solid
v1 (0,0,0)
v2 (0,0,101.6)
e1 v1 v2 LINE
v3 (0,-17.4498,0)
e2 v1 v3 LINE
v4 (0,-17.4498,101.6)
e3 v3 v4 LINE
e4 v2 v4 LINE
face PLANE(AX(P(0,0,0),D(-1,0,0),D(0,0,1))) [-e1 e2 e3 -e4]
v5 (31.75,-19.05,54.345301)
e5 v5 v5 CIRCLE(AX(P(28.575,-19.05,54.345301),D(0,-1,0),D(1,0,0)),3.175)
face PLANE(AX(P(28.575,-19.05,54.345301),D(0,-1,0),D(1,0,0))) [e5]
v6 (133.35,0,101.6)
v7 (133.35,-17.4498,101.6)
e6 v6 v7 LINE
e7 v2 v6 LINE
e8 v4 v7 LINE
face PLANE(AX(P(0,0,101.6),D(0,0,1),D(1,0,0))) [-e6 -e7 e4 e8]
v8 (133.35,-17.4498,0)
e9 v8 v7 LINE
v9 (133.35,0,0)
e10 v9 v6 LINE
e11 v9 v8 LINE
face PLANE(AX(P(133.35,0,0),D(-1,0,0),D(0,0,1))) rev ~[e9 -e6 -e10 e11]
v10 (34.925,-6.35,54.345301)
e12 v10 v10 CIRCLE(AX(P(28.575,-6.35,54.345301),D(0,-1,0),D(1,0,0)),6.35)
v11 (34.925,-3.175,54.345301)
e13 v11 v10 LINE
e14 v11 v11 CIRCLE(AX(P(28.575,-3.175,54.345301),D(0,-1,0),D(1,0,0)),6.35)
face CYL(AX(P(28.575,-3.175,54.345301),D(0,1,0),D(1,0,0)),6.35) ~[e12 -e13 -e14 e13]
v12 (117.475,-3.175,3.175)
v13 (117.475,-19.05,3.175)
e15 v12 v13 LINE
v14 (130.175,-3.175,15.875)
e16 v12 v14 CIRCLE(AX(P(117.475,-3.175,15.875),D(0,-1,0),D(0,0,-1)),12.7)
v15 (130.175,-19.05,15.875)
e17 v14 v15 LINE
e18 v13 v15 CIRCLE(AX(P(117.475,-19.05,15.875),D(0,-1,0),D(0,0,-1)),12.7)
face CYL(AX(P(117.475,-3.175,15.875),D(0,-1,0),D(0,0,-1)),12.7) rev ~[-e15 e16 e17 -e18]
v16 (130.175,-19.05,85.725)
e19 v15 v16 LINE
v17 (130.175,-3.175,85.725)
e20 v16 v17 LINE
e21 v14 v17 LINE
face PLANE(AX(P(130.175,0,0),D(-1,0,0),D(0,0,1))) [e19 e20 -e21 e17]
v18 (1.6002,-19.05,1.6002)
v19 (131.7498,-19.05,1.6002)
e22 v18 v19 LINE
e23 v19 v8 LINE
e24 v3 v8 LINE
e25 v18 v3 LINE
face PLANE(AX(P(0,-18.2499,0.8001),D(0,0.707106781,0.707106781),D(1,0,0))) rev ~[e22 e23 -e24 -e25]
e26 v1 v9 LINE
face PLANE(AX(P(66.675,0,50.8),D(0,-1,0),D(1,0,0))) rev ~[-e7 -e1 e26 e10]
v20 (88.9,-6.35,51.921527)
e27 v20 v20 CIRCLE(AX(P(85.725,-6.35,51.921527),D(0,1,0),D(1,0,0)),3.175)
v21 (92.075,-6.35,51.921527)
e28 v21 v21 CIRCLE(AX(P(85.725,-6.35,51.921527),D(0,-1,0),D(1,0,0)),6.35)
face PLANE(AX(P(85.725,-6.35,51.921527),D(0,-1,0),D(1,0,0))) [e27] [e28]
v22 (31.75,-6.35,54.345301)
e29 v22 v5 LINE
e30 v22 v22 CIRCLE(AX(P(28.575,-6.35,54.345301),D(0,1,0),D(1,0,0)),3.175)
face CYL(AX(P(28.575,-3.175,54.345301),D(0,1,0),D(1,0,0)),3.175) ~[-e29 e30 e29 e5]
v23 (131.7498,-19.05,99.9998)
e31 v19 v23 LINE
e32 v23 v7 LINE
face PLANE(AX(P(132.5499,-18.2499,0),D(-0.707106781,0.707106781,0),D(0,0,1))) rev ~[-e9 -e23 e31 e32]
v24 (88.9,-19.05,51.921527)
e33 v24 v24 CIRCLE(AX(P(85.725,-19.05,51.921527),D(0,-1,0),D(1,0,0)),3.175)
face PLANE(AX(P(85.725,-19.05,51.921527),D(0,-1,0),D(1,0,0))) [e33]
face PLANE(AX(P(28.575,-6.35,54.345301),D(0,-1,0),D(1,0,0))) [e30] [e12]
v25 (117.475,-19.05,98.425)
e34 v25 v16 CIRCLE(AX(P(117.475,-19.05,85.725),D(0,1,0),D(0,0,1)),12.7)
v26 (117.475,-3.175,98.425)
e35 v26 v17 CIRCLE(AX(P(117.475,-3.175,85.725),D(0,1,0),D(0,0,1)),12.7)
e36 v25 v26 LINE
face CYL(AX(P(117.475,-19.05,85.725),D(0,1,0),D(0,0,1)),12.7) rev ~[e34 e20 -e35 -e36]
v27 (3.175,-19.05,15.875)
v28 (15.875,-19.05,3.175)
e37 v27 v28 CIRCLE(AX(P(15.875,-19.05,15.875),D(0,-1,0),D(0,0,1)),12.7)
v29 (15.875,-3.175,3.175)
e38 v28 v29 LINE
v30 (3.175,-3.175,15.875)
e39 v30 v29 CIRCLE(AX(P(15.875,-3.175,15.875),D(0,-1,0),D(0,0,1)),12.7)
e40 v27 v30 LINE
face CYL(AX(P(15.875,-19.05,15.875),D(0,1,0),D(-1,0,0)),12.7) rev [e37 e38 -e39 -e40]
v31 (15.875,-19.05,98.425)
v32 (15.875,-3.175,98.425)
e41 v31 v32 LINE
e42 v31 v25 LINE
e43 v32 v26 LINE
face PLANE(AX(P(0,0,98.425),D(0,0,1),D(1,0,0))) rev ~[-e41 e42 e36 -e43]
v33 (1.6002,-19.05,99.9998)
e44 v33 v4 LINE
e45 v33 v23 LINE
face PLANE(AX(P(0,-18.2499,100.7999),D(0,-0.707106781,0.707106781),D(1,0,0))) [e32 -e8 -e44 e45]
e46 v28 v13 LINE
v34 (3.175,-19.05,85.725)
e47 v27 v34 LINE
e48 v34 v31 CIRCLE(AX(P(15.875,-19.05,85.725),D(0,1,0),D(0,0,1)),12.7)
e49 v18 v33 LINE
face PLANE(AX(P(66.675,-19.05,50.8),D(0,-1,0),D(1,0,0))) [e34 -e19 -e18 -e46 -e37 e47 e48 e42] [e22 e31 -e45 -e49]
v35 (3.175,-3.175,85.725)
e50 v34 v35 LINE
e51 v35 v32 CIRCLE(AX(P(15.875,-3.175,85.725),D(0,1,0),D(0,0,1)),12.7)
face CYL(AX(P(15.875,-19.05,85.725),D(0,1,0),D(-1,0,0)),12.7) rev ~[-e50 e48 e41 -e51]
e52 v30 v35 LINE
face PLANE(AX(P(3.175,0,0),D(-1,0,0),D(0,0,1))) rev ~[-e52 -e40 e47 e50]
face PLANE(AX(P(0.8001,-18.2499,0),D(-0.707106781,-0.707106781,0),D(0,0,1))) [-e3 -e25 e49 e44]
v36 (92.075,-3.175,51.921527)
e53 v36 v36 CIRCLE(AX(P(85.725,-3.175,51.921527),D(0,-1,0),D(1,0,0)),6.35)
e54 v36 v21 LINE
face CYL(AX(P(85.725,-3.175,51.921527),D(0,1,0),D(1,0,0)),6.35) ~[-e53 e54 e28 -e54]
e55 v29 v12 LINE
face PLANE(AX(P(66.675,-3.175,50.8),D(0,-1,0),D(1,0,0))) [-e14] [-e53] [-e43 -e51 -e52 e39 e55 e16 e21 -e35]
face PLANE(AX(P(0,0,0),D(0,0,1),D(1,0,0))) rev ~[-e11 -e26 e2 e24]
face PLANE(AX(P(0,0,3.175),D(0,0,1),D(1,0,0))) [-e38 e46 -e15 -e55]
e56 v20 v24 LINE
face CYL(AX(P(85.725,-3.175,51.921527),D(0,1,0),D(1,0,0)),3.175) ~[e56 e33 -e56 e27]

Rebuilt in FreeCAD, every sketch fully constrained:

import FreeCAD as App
import Part
import Sketcher
from FreeCAD import Vector
Q = App.Units.Quantity


def edges_at(feature, points):
    """Names of the edges that pass closest to the given points."""
    edges = feature.Shape.Edges
    near = lambda p: min(range(len(edges)), key=lambda i: edges[i].distToShape(Part.Vertex(*p))[0])
    return sorted({f"Edge{near(p) + 1}" for p in points})


def faces_at(feature, points):
    """Names of the faces that lie closest to the given points."""
    faces = feature.Shape.Faces
    near = lambda p: min(range(len(faces)), key=lambda i: faces[i].distToShape(Part.Vertex(*p))[0])
    return sorted({f"Face{near(p) + 1}" for p in points})

doc = App.newDocument("Part")
params = doc.addObject("Spreadsheet::Sheet", "Params")
for row, (alias, value) in enumerate([
    ("sketch1_height", "4 in"),
    ("sketch1_width", "5.25 in"),
    ("pad1_length", "0.75 in"),
    ("thickness_wall", "0.125 in"),
    ("sketch2_diameter", "0.5 in"),
    ("pad2_length", "0.125 in"),
    ("sketch3_diameter", "0.25 in"),
    ("pad3_length", "0.625 in"),
    ("fillet_radius", "0.5 in"),
    ("chamfer_size", "0.063 in"),
], start=1):
    params.set(f"A{row}", alias)
    params.set(f"B{row}", "=" + value)
    params.setAlias(f"B{row}", alias)

body = doc.addObject("PartDesign::Body", "Body")

sketch1 = doc.addObject("Sketcher::SketchObject", "Sketch")
body.addObject(sketch1)
sketch1.AttachmentSupport = (doc.XZ_Plane, [""])
sketch1.MapMode = "FlatFace"
sketch1.addGeometry([
    Part.LineSegment(Vector(0, 101.6, 0), Vector(0, 0, 0)),
    Part.LineSegment(Vector(0, 0, 0), Vector(133.35, 0, 0)),
    Part.LineSegment(Vector(133.35, 0, 0), Vector(133.35, 101.6, 0)),
    Part.LineSegment(Vector(133.35, 101.6, 0), Vector(0, 101.6, 0)),
], False)
sketch1.addConstraint([
    Sketcher.Constraint("Coincident", 0, 2, 1, 1),
    Sketcher.Constraint("Coincident", 1, 2, 2, 1),
    Sketcher.Constraint("Coincident", 2, 2, 3, 1),
    Sketcher.Constraint("Coincident", 3, 2, 0, 1),
    Sketcher.Constraint("Vertical", 0),
    Sketcher.Constraint("Horizontal", 1),
    Sketcher.Constraint("Vertical", 2),
    Sketcher.Constraint("Horizontal", 3),
    Sketcher.Constraint("Coincident", 0, 2, -1, 1),
    Sketcher.Constraint("DistanceY", 0, 2, 0, 1, Q("4 in")),
    Sketcher.Constraint("DistanceX", 1, 1, 1, 2, Q("5.25 in")),
])
sketch1.setExpression("Constraints[9]", "Params.sketch1_height")
sketch1.setExpression("Constraints[10]", "Params.sketch1_width")
pad1 = doc.addObject("PartDesign::Pad", "Pad")
body.addObject(pad1)
pad1.Profile = sketch1
pad1.setExpression("Length", "Params.pad1_length")
doc.recompute()

thickness = doc.addObject("PartDesign::Thickness", "Thickness")
body.addObject(thickness)
thickness.Base = (pad1, faces_at(pad1, [(66.675, -19.05, 50.8)]))
thickness.setExpression("Value", "Params.thickness_wall")
thickness.Reversed = True
thickness.Join = "Arc"

sketch2 = doc.addObject("Sketcher::SketchObject", "Sketch001")
body.addObject(sketch2)
sketch2.AttachmentSupport = (doc.XZ_Plane, [""])
sketch2.MapMode = "FlatFace"
sketch2.AttachmentOffset = App.Placement(Vector(0, 0, 0.125 * 25.4), App.Rotation())
sketch2.addGeometry([
    Part.Circle(Vector(28.575, 54.345301, 0), Vector(0, 0, 1), 6.35),
    Part.Circle(Vector(85.725, 51.921527, 0), Vector(0, 0, 1), 6.35),
], False)
sketch2.addConstraint([
    Sketcher.Constraint("Equal", 0, 1),
    Sketcher.Constraint("Diameter", 0, Q("0.5 in")),
    Sketcher.Constraint("DistanceX", 0, 3, 1, 3, Q("2.25 in")),
    Sketcher.Constraint("DistanceX", -1, 1, 0, 3, Q("1.125 in")),
    Sketcher.Constraint("DistanceY", -1, 1, 0, 3, 54.345301),
    Sketcher.Constraint("DistanceY", -1, 1, 1, 3, 51.921527),
])
sketch2.setExpression("Constraints[1]", "Params.sketch2_diameter")
pad2 = doc.addObject("PartDesign::Pad", "Pad001")
body.addObject(pad2)
pad2.Profile = sketch2
pad2.setExpression("Length", "Params.pad2_length")

sketch3 = doc.addObject("Sketcher::SketchObject", "Sketch002")
body.addObject(sketch3)
sketch3.AttachmentSupport = (doc.XZ_Plane, [""])
sketch3.MapMode = "FlatFace"
sketch3.AttachmentOffset = App.Placement(Vector(0, 0, 0.125 * 25.4), App.Rotation())
sketch3.addGeometry([
    Part.Circle(Vector(28.575, 54.345301, 0), Vector(0, 0, 1), 3.175),
    Part.Circle(Vector(85.725, 51.921527, 0), Vector(0, 0, 1), 3.175),
], False)
sketch3.addConstraint([
    Sketcher.Constraint("Equal", 0, 1),
    Sketcher.Constraint("Diameter", 0, Q("0.25 in")),
    Sketcher.Constraint("DistanceX", 0, 3, 1, 3, Q("2.25 in")),
    Sketcher.Constraint("DistanceX", -1, 1, 0, 3, Q("1.125 in")),
    Sketcher.Constraint("DistanceY", -1, 1, 0, 3, 54.345301),
    Sketcher.Constraint("DistanceY", -1, 1, 1, 3, 51.921527),
])
sketch3.setExpression("Constraints[1]", "Params.sketch3_diameter")
pad3 = doc.addObject("PartDesign::Pad", "Pad002")
body.addObject(pad3)
pad3.Profile = sketch3
pad3.setExpression("Length", "Params.pad3_length")
doc.recompute()

fillet = doc.addObject("PartDesign::Fillet", "Fillet")
body.addObject(fillet)
fillet.Base = (pad3, edges_at(pad3, [
    (3.175, -11.113, 3.175),
    (3.175, -11.113, 98.425),
    (130.175, -11.113, 3.175),
    (130.175, -11.113, 98.425),
]))
fillet.setExpression("Radius", "Params.fillet_radius")
doc.recompute()

chamfer = doc.addObject("PartDesign::Chamfer", "Chamfer")
body.addObject(chamfer)
chamfer.Base = (fillet, edges_at(fillet, [
    (133.35, -19.05, 50.8),
    (66.675, -19.05, 0),
    (0, -19.05, 50.8),
    (66.675, -19.05, 101.6),
]))
chamfer.setExpression("Size", "Params.chamfer_size")

doc.recompute()
